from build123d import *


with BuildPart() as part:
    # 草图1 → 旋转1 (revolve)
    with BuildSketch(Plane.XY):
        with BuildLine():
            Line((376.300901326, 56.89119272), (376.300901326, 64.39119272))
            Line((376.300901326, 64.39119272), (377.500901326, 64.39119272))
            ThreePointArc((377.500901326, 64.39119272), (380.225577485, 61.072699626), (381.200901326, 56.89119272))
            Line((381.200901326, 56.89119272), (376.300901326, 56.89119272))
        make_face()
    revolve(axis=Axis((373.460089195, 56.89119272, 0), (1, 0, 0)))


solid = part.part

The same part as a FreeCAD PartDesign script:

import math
import FreeCAD as App
import Part
import Sketcher
from FreeCAD import Vector

doc = App.newDocument("Part")
body = doc.addObject("PartDesign::Body", "Body")

# Sketch on XY plane
sketch1 = body.newObject("Sketcher::SketchObject", "Sketch")
sketch1.AttachmentSupport = (doc.getObject("XY_Plane"), [""])
sketch1.MapMode = "FlatFace"
sketch1.addGeometry(Part.LineSegment(Vector(376.3, 64.4, 0), Vector(376.3, 56.9, 0)), False)
sketch1.addGeometry(Part.LineSegment(Vector(376.3, 56.9, 0), Vector(381.2, 56.9, 0)), False)
sketch1.addGeometry(Part.ArcOfCircle(Part.Circle(Vector(371.7, 56.9, 0), Vector(0, 0, 1), 9.5), math.radians(0), math.radians(53)), False)
sketch1.addGeometry(Part.LineSegment(Vector(377.5, 64.4, 0), Vector(376.3, 64.4, 0)), False)
sketch1.addGeometry(Part.LineSegment(Vector(371.7, 56.9, 0), Vector(381.2, 56.9, 0)), True)  # axis
sketch1.addConstraint(Sketcher.Constraint("Coincident", 0, 2, 1, 1))
sketch1.addConstraint(Sketcher.Constraint("Coincident", 1, 2, 2, 1))
sketch1.addConstraint(Sketcher.Constraint("Coincident", 2, 2, 3, 1))
sketch1.addConstraint(Sketcher.Constraint("Coincident", 3, 2, 0, 1))
sketch1.addConstraint(Sketcher.Constraint("Vertical", 0))
sketch1.addConstraint(Sketcher.Constraint("Horizontal", 1))
sketch1.addConstraint(Sketcher.Constraint("Horizontal", 3))
sketch1.addConstraint(Sketcher.Constraint("Horizontal", 4))
sketch1.addConstraint(Sketcher.Constraint("Coincident", 4, 1, 2, 3))
sketch1.addConstraint(Sketcher.Constraint("Coincident", 4, 2, 1, 2))
sketch1.addConstraint(Sketcher.Constraint("DistanceX", 1, 1, 1, 2, 4.9))
sketch1.addConstraint(Sketcher.Constraint("DistanceX", 3, 2, 3, 1, 1.2))
sketch1.addConstraint(Sketcher.Constraint("DistanceY", 0, 2, 0, 1, 7.5))
sketch1.addConstraint(Sketcher.Constraint("DistanceX", -1, 1, 0, 2, 376.300901))
sketch1.addConstraint(Sketcher.Constraint("DistanceY", -1, 1, 2, 3, 56.891193))
revolution = body.newObject("PartDesign::Revolution", "Revolution")
revolution.Profile = sketch1
revolution.ReferenceAxis = (sketch1, ["Axis0"])
revolution.Angle = 360

doc.recompute()
